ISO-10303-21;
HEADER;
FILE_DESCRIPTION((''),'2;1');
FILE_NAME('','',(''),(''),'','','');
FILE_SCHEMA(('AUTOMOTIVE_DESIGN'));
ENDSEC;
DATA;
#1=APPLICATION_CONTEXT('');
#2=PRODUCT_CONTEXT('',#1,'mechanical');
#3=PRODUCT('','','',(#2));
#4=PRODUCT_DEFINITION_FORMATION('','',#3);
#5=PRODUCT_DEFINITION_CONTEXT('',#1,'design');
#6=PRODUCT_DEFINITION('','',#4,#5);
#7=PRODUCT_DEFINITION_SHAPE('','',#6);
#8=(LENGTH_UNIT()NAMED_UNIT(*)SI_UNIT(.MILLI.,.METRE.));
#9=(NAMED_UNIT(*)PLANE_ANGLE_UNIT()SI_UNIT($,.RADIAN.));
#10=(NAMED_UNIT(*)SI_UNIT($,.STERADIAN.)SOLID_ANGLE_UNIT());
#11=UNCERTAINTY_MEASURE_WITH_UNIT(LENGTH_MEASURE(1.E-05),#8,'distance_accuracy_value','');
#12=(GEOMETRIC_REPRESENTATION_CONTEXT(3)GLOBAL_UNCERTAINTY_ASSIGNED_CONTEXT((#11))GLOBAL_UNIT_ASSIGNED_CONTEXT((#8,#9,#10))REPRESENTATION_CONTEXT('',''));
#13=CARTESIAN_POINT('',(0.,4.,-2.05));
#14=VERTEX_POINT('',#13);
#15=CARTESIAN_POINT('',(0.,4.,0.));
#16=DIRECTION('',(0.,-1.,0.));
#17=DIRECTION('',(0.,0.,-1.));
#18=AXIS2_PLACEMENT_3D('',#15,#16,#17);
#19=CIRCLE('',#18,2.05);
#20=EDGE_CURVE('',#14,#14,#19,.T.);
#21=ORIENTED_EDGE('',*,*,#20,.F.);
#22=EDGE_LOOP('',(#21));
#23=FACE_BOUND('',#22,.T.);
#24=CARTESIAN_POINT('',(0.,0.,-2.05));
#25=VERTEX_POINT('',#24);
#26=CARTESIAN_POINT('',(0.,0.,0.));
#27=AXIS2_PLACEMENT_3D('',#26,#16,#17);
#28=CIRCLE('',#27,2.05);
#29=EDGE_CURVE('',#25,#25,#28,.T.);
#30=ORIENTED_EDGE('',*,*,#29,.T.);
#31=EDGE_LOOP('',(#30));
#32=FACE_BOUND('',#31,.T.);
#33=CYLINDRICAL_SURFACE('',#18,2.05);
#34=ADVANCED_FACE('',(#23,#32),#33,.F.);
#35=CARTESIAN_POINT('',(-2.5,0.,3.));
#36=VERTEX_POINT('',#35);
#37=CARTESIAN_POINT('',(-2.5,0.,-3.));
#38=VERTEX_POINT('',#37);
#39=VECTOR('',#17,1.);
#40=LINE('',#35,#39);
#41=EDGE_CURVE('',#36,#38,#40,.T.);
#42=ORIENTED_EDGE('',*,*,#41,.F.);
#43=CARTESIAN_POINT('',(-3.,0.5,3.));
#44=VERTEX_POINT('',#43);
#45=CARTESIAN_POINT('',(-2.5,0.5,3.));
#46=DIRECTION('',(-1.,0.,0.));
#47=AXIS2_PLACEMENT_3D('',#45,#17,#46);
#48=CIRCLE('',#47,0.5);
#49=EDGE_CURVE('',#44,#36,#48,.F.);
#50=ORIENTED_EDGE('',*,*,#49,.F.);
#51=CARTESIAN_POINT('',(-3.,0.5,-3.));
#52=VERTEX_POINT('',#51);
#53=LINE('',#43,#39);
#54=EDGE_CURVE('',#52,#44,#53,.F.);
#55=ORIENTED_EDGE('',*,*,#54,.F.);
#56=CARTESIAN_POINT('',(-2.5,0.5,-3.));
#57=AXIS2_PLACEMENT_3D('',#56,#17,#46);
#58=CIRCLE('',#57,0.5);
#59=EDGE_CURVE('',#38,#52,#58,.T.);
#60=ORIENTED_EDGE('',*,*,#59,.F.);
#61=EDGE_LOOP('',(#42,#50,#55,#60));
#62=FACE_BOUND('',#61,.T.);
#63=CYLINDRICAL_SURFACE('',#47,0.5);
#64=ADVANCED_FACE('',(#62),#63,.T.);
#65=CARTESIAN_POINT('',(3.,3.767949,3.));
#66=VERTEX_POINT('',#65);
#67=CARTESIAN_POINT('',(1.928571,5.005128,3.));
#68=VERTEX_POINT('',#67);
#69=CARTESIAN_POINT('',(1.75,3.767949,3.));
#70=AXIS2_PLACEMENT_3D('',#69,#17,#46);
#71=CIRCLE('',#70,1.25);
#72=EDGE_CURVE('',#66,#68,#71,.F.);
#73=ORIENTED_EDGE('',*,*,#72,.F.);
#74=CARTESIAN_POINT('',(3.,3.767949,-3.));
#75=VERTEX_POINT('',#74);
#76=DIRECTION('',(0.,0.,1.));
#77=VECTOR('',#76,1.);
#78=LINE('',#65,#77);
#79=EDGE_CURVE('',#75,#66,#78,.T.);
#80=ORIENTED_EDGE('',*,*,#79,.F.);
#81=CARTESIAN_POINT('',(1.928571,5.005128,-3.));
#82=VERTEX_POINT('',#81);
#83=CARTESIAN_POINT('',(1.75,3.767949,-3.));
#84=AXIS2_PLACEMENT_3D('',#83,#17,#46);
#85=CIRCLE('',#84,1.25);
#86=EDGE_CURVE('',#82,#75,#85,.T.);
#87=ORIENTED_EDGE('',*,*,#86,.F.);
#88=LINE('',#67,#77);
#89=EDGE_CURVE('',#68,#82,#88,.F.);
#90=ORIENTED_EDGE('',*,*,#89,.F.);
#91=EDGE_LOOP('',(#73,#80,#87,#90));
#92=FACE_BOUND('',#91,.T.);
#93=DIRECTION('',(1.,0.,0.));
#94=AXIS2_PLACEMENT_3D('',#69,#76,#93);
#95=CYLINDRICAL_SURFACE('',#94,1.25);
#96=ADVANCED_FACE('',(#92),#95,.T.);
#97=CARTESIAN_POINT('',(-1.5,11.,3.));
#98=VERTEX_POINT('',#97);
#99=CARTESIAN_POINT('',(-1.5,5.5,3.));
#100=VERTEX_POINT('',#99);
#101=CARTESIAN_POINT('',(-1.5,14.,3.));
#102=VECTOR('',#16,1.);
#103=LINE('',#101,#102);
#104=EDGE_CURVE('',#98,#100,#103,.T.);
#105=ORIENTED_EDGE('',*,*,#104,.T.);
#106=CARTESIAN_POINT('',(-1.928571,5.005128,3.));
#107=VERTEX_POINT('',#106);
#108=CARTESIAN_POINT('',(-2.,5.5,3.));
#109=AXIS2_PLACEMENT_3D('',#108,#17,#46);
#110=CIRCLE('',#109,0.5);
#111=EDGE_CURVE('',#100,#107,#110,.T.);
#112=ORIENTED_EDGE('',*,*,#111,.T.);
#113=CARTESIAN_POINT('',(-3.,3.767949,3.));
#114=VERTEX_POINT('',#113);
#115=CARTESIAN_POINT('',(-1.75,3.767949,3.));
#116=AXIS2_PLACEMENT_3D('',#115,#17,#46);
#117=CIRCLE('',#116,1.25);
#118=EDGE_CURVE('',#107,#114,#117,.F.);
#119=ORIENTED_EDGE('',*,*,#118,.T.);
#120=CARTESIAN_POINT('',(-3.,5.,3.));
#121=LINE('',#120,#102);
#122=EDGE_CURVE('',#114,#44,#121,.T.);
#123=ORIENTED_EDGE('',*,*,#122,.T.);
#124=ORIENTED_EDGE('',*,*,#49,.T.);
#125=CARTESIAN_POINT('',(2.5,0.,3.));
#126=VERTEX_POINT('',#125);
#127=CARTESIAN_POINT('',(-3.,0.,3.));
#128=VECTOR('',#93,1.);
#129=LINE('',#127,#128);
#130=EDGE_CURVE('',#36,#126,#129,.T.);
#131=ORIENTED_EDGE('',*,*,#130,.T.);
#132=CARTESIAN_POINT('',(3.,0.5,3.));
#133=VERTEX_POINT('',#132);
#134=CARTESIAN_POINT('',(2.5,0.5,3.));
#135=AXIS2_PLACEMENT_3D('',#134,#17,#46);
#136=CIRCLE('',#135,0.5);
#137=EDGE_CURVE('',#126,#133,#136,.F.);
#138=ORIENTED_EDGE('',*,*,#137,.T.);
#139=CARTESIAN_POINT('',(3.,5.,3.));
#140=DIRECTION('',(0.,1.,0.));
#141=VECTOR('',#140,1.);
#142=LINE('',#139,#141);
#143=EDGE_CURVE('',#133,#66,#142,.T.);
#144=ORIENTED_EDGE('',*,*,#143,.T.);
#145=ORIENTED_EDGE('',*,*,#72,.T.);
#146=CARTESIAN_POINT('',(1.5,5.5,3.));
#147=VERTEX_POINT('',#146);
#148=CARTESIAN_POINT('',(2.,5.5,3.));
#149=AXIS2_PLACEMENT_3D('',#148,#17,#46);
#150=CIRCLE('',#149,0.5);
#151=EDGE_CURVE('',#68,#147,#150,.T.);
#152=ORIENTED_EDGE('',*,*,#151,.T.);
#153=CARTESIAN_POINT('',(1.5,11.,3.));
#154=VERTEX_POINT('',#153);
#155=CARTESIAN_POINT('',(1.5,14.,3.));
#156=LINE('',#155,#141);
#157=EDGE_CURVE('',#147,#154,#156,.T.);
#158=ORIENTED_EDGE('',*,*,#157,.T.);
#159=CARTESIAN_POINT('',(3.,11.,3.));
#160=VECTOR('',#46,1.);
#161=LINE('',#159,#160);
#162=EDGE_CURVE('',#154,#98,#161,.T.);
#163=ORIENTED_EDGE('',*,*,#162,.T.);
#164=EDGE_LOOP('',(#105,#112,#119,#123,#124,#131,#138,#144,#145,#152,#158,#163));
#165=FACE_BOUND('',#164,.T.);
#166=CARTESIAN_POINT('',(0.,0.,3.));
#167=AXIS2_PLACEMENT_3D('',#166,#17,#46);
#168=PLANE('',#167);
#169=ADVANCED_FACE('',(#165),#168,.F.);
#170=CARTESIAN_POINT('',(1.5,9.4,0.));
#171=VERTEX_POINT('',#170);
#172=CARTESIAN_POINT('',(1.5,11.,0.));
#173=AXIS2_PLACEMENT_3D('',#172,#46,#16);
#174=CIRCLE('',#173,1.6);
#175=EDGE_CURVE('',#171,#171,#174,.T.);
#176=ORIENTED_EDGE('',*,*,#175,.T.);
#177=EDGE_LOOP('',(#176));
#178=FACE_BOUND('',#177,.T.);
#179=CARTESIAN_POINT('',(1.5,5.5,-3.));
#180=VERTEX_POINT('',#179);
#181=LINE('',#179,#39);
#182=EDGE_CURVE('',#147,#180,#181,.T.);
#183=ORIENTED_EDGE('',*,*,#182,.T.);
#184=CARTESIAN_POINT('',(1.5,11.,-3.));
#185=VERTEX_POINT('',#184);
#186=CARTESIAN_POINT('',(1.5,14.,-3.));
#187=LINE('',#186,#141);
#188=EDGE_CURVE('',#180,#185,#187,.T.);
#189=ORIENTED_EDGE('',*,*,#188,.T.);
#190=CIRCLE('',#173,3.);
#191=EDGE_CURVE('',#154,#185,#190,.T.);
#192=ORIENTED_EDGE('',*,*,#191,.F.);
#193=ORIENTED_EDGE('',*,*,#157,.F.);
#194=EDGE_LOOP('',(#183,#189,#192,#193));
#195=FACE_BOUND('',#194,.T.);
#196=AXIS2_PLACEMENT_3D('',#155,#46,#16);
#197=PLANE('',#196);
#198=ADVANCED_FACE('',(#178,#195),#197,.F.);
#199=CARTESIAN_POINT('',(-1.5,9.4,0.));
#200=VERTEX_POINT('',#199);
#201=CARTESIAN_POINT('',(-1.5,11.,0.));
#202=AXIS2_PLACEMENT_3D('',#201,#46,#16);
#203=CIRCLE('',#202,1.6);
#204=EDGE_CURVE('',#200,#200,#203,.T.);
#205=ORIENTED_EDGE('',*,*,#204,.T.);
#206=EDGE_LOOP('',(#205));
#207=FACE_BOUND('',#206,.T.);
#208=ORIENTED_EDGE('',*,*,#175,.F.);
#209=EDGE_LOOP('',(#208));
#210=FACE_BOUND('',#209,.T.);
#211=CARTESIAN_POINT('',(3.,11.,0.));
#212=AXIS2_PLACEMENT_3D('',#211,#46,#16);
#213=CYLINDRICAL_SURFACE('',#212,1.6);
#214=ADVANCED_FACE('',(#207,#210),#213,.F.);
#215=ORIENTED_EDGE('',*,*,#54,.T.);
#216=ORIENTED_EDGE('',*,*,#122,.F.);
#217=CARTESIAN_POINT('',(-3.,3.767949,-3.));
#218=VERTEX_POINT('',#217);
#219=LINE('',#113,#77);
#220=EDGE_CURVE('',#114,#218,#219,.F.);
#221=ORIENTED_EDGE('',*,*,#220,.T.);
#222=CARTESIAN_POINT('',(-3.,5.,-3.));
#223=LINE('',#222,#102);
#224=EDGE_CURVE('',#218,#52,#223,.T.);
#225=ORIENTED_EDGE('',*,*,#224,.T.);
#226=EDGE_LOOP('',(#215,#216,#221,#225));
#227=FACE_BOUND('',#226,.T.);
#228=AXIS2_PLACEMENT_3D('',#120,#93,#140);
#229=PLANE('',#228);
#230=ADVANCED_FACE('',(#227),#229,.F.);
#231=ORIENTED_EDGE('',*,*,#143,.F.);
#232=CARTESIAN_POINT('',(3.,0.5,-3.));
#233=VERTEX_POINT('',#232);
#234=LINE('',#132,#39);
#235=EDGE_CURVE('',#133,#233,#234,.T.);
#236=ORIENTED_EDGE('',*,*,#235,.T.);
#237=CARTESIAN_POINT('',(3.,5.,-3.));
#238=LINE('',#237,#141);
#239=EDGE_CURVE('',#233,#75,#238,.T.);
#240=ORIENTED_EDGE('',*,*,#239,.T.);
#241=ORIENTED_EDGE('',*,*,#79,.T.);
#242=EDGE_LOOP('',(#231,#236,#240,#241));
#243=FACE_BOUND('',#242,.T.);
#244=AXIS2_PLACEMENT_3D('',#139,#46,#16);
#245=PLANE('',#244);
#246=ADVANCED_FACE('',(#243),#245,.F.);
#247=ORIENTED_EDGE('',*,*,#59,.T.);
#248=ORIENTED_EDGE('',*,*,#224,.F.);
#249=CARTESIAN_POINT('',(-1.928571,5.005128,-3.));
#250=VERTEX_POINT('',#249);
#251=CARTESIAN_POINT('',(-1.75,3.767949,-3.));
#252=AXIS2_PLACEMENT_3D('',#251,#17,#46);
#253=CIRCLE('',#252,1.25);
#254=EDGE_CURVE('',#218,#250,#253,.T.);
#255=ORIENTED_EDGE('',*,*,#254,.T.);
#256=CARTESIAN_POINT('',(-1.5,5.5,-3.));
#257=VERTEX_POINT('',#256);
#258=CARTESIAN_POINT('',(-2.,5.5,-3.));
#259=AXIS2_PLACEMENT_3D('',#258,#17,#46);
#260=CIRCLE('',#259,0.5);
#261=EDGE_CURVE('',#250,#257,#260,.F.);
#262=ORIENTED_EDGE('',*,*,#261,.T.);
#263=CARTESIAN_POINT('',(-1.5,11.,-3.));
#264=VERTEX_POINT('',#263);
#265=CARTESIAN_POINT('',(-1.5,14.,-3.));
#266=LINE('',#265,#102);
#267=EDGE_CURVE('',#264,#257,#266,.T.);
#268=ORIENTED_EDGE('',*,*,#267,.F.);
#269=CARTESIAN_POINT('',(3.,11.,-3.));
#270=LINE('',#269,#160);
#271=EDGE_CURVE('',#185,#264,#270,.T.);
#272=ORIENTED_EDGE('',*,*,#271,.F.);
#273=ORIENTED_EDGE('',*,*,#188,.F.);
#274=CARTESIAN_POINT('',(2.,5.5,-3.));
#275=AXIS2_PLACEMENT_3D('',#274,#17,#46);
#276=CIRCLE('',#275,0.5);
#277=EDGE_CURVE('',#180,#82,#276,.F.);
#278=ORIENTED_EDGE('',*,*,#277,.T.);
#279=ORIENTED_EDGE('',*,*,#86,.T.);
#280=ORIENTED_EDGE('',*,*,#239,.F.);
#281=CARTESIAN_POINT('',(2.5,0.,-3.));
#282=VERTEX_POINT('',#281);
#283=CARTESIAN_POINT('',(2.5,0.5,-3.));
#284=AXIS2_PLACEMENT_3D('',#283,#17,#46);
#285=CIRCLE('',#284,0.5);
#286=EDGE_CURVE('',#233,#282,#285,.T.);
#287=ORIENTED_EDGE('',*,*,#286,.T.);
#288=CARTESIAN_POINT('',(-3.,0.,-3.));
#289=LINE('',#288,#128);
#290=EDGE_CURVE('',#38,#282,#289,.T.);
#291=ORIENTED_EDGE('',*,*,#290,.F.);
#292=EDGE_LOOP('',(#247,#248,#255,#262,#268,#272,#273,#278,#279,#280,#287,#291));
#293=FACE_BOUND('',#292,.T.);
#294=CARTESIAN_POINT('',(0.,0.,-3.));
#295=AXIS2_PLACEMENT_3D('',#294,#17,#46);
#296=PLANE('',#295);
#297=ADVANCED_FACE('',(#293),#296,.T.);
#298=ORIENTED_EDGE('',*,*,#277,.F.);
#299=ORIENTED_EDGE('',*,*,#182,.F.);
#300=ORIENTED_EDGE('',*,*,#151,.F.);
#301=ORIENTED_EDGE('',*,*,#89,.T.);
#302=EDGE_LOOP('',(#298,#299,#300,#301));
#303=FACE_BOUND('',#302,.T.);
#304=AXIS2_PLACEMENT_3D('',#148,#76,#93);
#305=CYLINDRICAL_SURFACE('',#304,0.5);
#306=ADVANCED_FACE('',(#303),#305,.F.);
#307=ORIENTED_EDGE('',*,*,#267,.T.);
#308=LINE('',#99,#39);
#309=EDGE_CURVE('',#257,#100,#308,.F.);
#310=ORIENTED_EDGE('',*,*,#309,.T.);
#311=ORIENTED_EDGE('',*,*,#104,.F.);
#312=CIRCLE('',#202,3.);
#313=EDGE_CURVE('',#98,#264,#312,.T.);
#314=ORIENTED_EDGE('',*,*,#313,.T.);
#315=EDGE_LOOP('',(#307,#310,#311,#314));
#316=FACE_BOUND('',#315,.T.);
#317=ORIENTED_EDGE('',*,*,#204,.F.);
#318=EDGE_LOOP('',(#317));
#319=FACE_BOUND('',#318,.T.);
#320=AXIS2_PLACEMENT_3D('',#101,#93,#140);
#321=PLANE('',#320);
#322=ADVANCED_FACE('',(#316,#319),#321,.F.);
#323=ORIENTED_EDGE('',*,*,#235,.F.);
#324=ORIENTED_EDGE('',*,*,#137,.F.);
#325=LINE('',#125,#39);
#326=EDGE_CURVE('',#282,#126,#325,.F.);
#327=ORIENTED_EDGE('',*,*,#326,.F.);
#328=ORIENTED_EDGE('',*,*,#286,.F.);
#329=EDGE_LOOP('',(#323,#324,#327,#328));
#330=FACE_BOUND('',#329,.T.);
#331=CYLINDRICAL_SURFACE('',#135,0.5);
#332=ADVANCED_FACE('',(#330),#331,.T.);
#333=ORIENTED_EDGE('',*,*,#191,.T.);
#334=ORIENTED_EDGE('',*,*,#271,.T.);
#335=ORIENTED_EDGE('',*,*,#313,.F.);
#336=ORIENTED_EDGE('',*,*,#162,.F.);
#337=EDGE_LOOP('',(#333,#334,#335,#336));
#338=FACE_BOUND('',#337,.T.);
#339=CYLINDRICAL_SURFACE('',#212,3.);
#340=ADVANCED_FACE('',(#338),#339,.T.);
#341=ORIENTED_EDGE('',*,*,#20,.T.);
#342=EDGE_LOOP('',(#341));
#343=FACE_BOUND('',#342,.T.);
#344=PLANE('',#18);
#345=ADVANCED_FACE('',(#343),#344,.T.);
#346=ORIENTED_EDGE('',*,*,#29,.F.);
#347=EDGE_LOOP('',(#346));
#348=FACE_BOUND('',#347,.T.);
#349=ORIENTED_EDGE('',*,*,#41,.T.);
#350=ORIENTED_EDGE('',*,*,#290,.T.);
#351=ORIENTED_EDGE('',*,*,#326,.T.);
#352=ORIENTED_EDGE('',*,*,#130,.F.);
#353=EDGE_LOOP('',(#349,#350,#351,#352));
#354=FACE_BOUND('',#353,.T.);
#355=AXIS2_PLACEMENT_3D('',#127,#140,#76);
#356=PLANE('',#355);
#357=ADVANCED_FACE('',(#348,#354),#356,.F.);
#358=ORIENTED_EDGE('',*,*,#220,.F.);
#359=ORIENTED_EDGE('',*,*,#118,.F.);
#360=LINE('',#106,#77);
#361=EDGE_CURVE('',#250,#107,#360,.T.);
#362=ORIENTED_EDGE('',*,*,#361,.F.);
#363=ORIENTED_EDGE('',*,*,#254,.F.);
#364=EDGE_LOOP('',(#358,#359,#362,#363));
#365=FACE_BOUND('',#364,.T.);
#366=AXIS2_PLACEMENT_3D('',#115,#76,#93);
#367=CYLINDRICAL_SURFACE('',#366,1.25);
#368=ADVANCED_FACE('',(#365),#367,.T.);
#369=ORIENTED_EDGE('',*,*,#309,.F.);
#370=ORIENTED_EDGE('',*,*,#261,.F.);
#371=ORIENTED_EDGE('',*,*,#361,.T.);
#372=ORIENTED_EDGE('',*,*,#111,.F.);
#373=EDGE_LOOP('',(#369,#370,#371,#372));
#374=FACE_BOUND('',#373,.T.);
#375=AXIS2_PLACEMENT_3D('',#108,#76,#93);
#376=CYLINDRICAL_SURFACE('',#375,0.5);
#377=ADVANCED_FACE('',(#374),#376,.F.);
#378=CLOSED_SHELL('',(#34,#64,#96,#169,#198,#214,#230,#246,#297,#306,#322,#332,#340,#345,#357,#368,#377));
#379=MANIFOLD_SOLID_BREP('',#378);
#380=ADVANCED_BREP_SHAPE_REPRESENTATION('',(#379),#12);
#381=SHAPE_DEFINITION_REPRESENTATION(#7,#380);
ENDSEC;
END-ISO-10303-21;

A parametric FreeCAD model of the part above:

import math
import FreeCAD as App
import Part
import Sketcher

V = App.Vector
Q = App.Units.Quantity


def edges_at(feature, points):
    """Names of the edges that pass closest to the given points."""
    edges = feature.Shape.Edges
    near = lambda p: min(range(len(edges)), key=lambda i: edges[i].distToShape(Part.Vertex(*p))[0])
    return sorted({f"Edge{near(p) + 1}" for p in points})


def add_polygon(sketch, points):
    """Adds a closed chain of lines whose ends are joined by coincident constraints."""
    first, n = sketch.GeometryCount, len(points)
    for a, b in zip(points, points[1:] + points[:1]):
        sketch.addGeometry(Part.LineSegment(App.Vector(*a, 0), App.Vector(*b, 0)), False)
    for i in range(n):
        sketch.addConstraint(Sketcher.Constraint("Coincident", first + i, 2, first + (i + 1) % n, 1))

doc = App.newDocument("Part")
body = doc.addObject("PartDesign::Body", "Body")

sketch1 = doc.addObject("Sketcher::SketchObject", "Sketch")
body.addObject(sketch1)
sketch1.AttachmentSupport = (doc.XY_Plane, [""])
sketch1.MapMode = "FlatFace"
add_polygon(sketch1, [(1.5, 14), (-1.5, 14), (-1.5, 5), (-3, 5), (-3, 0), (3, 0), (3, 5), (1.5, 5)])
sketch1.addConstraint([
    Sketcher.Constraint("Horizontal", 0),
    Sketcher.Constraint("Vertical", 1),
    Sketcher.Constraint("Horizontal", 2),
    Sketcher.Constraint("Vertical", 3),
    Sketcher.Constraint("Horizontal", 4),
    Sketcher.Constraint("Vertical", 5),
    Sketcher.Constraint("Horizontal", 6),
    Sketcher.Constraint("Vertical", 7),
    Sketcher.Constraint("Symmetric", 3, 2, 4, 2, -1, 1),
    Sketcher.Constraint("Symmetric", 1, 2, 6, 2, -2),
    Sketcher.Constraint("DistanceX", 0, 2, 0, 1, Q("3 mm")),
    Sketcher.Constraint("DistanceX", 4, 1, 4, 2, Q("6 mm")),
    Sketcher.Constraint("DistanceY", 1, 2, 1, 1, Q("9 mm")),
    Sketcher.Constraint("DistanceY", 3, 2, 3, 1, Q("5 mm")),
])
pad1 = doc.addObject("PartDesign::Pad", "Pad")
body.addObject(pad1)
pad1.Profile = sketch1
pad1.Length = 6
pad1.Midplane = True
doc.recompute()

fillet = doc.addObject("PartDesign::Fillet", "Fillet")
body.addObject(fillet)
fillet.Base = (pad1, edges_at(pad1, [
    (1.5, 5, 0),
    (3, 0, 0),
    (-3, 0, 0),
    (-1.5, 5, 0),
]))
fillet.Radius = 0.5
doc.recompute()

fillet2 = doc.addObject("PartDesign::Fillet", "Fillet001")
body.addObject(fillet2)
fillet2.Base = (fillet, edges_at(fillet, [(3, 5, 0), (-3, 5, 0)]))
fillet2.Radius = 1.25

sketch2 = doc.addObject("Sketcher::SketchObject", "Sketch001")
body.addObject(sketch2)
sketch2.AttachmentSupport = (doc.YZ_Plane, [""])
sketch2.MapMode = "FlatFace"
sketch2.AttachmentOffset = App.Placement(V(0, 0, -1.5), App.Rotation())
sketch2.addGeometry(Part.Circle(V(11, 0, 0), V(0, 0, 1), 1.6), False)
sketch2.addConstraint([
    Sketcher.Constraint("PointOnObject", 0, 3, -1),
    Sketcher.Constraint("Diameter", 0, Q("3.2 mm")),
    Sketcher.Constraint("DistanceX", -1, 1, 0, 3, Q("11 mm")),
])
pocket1 = doc.addObject("PartDesign::Pocket", "Pocket")
body.addObject(pocket1)
pocket1.Profile = sketch2
pocket1.Type = "ThroughAll"
pocket1.Reversed = True

sketch3 = doc.addObject("Sketcher::SketchObject", "Sketch002")
body.addObject(sketch3)
sketch3.AttachmentSupport = (doc.XZ_Plane, [""])
sketch3.MapMode = "FlatFace"
sketch3.addGeometry(Part.Circle(V(0, 0, 0), V(0, 0, 1), 2), False)
sketch3.addConstraint([
    Sketcher.Constraint("Coincident", 0, 3, -1, 1),
    Sketcher.Constraint("Diameter", 0, Q("4.1 mm")),
])
pocket2 = doc.addObject("PartDesign::Pocket", "Pocket001")
body.addObject(pocket2)
pocket2.Profile = sketch3
pocket2.Length = 4

sketch4 = doc.addObject("Sketcher::SketchObject", "Sketch003")
body.addObject(sketch4)
sketch4.AttachmentSupport = (doc.YZ_Plane, [""])
sketch4.MapMode = "FlatFace"
sketch4.AttachmentOffset = App.Placement(V(0, 0, -1.5), App.Rotation())
sketch4.addGeometry([
    Part.LineSegment(V(14, -3, 0), V(11, -3, 0)),
    Part.ArcOfCircle(Part.Circle(V(11, 0, 0), V(0, 0, 1), 3), math.radians(-90), math.radians(0)),
    Part.LineSegment(V(14, 0, 0), V(14, -3, 0)),
    Part.LineSegment(V(14, 3, 0), V(14, 0, 0)),
    Part.ArcOfCircle(Part.Circle(V(11, 0, 0), V(0, 0, 1), 3), math.radians(0), math.radians(90)),
    Part.LineSegment(V(11, 3, 0), V(14, 3, 0)),
], False)
sketch4.addConstraint([
    Sketcher.Constraint("Tangent", 0, 2, 1, 1),
    Sketcher.Constraint("Tangent", 1, 2, 2, 1),
    Sketcher.Constraint("Coincident", 2, 2, 0, 1),
    Sketcher.Constraint("Tangent", 3, 2, 4, 1),
    Sketcher.Constraint("Tangent", 4, 2, 5, 1),
    Sketcher.Constraint("Coincident", 5, 2, 3, 1),
    Sketcher.Constraint("Horizontal", 0),
    Sketcher.Constraint("Vertical", 2),
    Sketcher.Constraint("Vertical", 3),
    Sketcher.Constraint("Horizontal", 5),
    Sketcher.Constraint("Coincident", 4, 3, 1, 3),
    Sketcher.Constraint("Equal", 1, 4),
    Sketcher.Constraint("PointOnObject", 1, 3, -1),
    Sketcher.Constraint("Radius", 1, Q("3 mm")),
    Sketcher.Constraint("DistanceX", -1, 1, 1, 3, Q("11 mm")),
])
pocket3 = doc.addObject("PartDesign::Pocket", "Pocket002")
body.addObject(pocket3)
pocket3.Profile = sketch4
pocket3.Type = "ThroughAll"
pocket3.Reversed = True

doc.recompute()
